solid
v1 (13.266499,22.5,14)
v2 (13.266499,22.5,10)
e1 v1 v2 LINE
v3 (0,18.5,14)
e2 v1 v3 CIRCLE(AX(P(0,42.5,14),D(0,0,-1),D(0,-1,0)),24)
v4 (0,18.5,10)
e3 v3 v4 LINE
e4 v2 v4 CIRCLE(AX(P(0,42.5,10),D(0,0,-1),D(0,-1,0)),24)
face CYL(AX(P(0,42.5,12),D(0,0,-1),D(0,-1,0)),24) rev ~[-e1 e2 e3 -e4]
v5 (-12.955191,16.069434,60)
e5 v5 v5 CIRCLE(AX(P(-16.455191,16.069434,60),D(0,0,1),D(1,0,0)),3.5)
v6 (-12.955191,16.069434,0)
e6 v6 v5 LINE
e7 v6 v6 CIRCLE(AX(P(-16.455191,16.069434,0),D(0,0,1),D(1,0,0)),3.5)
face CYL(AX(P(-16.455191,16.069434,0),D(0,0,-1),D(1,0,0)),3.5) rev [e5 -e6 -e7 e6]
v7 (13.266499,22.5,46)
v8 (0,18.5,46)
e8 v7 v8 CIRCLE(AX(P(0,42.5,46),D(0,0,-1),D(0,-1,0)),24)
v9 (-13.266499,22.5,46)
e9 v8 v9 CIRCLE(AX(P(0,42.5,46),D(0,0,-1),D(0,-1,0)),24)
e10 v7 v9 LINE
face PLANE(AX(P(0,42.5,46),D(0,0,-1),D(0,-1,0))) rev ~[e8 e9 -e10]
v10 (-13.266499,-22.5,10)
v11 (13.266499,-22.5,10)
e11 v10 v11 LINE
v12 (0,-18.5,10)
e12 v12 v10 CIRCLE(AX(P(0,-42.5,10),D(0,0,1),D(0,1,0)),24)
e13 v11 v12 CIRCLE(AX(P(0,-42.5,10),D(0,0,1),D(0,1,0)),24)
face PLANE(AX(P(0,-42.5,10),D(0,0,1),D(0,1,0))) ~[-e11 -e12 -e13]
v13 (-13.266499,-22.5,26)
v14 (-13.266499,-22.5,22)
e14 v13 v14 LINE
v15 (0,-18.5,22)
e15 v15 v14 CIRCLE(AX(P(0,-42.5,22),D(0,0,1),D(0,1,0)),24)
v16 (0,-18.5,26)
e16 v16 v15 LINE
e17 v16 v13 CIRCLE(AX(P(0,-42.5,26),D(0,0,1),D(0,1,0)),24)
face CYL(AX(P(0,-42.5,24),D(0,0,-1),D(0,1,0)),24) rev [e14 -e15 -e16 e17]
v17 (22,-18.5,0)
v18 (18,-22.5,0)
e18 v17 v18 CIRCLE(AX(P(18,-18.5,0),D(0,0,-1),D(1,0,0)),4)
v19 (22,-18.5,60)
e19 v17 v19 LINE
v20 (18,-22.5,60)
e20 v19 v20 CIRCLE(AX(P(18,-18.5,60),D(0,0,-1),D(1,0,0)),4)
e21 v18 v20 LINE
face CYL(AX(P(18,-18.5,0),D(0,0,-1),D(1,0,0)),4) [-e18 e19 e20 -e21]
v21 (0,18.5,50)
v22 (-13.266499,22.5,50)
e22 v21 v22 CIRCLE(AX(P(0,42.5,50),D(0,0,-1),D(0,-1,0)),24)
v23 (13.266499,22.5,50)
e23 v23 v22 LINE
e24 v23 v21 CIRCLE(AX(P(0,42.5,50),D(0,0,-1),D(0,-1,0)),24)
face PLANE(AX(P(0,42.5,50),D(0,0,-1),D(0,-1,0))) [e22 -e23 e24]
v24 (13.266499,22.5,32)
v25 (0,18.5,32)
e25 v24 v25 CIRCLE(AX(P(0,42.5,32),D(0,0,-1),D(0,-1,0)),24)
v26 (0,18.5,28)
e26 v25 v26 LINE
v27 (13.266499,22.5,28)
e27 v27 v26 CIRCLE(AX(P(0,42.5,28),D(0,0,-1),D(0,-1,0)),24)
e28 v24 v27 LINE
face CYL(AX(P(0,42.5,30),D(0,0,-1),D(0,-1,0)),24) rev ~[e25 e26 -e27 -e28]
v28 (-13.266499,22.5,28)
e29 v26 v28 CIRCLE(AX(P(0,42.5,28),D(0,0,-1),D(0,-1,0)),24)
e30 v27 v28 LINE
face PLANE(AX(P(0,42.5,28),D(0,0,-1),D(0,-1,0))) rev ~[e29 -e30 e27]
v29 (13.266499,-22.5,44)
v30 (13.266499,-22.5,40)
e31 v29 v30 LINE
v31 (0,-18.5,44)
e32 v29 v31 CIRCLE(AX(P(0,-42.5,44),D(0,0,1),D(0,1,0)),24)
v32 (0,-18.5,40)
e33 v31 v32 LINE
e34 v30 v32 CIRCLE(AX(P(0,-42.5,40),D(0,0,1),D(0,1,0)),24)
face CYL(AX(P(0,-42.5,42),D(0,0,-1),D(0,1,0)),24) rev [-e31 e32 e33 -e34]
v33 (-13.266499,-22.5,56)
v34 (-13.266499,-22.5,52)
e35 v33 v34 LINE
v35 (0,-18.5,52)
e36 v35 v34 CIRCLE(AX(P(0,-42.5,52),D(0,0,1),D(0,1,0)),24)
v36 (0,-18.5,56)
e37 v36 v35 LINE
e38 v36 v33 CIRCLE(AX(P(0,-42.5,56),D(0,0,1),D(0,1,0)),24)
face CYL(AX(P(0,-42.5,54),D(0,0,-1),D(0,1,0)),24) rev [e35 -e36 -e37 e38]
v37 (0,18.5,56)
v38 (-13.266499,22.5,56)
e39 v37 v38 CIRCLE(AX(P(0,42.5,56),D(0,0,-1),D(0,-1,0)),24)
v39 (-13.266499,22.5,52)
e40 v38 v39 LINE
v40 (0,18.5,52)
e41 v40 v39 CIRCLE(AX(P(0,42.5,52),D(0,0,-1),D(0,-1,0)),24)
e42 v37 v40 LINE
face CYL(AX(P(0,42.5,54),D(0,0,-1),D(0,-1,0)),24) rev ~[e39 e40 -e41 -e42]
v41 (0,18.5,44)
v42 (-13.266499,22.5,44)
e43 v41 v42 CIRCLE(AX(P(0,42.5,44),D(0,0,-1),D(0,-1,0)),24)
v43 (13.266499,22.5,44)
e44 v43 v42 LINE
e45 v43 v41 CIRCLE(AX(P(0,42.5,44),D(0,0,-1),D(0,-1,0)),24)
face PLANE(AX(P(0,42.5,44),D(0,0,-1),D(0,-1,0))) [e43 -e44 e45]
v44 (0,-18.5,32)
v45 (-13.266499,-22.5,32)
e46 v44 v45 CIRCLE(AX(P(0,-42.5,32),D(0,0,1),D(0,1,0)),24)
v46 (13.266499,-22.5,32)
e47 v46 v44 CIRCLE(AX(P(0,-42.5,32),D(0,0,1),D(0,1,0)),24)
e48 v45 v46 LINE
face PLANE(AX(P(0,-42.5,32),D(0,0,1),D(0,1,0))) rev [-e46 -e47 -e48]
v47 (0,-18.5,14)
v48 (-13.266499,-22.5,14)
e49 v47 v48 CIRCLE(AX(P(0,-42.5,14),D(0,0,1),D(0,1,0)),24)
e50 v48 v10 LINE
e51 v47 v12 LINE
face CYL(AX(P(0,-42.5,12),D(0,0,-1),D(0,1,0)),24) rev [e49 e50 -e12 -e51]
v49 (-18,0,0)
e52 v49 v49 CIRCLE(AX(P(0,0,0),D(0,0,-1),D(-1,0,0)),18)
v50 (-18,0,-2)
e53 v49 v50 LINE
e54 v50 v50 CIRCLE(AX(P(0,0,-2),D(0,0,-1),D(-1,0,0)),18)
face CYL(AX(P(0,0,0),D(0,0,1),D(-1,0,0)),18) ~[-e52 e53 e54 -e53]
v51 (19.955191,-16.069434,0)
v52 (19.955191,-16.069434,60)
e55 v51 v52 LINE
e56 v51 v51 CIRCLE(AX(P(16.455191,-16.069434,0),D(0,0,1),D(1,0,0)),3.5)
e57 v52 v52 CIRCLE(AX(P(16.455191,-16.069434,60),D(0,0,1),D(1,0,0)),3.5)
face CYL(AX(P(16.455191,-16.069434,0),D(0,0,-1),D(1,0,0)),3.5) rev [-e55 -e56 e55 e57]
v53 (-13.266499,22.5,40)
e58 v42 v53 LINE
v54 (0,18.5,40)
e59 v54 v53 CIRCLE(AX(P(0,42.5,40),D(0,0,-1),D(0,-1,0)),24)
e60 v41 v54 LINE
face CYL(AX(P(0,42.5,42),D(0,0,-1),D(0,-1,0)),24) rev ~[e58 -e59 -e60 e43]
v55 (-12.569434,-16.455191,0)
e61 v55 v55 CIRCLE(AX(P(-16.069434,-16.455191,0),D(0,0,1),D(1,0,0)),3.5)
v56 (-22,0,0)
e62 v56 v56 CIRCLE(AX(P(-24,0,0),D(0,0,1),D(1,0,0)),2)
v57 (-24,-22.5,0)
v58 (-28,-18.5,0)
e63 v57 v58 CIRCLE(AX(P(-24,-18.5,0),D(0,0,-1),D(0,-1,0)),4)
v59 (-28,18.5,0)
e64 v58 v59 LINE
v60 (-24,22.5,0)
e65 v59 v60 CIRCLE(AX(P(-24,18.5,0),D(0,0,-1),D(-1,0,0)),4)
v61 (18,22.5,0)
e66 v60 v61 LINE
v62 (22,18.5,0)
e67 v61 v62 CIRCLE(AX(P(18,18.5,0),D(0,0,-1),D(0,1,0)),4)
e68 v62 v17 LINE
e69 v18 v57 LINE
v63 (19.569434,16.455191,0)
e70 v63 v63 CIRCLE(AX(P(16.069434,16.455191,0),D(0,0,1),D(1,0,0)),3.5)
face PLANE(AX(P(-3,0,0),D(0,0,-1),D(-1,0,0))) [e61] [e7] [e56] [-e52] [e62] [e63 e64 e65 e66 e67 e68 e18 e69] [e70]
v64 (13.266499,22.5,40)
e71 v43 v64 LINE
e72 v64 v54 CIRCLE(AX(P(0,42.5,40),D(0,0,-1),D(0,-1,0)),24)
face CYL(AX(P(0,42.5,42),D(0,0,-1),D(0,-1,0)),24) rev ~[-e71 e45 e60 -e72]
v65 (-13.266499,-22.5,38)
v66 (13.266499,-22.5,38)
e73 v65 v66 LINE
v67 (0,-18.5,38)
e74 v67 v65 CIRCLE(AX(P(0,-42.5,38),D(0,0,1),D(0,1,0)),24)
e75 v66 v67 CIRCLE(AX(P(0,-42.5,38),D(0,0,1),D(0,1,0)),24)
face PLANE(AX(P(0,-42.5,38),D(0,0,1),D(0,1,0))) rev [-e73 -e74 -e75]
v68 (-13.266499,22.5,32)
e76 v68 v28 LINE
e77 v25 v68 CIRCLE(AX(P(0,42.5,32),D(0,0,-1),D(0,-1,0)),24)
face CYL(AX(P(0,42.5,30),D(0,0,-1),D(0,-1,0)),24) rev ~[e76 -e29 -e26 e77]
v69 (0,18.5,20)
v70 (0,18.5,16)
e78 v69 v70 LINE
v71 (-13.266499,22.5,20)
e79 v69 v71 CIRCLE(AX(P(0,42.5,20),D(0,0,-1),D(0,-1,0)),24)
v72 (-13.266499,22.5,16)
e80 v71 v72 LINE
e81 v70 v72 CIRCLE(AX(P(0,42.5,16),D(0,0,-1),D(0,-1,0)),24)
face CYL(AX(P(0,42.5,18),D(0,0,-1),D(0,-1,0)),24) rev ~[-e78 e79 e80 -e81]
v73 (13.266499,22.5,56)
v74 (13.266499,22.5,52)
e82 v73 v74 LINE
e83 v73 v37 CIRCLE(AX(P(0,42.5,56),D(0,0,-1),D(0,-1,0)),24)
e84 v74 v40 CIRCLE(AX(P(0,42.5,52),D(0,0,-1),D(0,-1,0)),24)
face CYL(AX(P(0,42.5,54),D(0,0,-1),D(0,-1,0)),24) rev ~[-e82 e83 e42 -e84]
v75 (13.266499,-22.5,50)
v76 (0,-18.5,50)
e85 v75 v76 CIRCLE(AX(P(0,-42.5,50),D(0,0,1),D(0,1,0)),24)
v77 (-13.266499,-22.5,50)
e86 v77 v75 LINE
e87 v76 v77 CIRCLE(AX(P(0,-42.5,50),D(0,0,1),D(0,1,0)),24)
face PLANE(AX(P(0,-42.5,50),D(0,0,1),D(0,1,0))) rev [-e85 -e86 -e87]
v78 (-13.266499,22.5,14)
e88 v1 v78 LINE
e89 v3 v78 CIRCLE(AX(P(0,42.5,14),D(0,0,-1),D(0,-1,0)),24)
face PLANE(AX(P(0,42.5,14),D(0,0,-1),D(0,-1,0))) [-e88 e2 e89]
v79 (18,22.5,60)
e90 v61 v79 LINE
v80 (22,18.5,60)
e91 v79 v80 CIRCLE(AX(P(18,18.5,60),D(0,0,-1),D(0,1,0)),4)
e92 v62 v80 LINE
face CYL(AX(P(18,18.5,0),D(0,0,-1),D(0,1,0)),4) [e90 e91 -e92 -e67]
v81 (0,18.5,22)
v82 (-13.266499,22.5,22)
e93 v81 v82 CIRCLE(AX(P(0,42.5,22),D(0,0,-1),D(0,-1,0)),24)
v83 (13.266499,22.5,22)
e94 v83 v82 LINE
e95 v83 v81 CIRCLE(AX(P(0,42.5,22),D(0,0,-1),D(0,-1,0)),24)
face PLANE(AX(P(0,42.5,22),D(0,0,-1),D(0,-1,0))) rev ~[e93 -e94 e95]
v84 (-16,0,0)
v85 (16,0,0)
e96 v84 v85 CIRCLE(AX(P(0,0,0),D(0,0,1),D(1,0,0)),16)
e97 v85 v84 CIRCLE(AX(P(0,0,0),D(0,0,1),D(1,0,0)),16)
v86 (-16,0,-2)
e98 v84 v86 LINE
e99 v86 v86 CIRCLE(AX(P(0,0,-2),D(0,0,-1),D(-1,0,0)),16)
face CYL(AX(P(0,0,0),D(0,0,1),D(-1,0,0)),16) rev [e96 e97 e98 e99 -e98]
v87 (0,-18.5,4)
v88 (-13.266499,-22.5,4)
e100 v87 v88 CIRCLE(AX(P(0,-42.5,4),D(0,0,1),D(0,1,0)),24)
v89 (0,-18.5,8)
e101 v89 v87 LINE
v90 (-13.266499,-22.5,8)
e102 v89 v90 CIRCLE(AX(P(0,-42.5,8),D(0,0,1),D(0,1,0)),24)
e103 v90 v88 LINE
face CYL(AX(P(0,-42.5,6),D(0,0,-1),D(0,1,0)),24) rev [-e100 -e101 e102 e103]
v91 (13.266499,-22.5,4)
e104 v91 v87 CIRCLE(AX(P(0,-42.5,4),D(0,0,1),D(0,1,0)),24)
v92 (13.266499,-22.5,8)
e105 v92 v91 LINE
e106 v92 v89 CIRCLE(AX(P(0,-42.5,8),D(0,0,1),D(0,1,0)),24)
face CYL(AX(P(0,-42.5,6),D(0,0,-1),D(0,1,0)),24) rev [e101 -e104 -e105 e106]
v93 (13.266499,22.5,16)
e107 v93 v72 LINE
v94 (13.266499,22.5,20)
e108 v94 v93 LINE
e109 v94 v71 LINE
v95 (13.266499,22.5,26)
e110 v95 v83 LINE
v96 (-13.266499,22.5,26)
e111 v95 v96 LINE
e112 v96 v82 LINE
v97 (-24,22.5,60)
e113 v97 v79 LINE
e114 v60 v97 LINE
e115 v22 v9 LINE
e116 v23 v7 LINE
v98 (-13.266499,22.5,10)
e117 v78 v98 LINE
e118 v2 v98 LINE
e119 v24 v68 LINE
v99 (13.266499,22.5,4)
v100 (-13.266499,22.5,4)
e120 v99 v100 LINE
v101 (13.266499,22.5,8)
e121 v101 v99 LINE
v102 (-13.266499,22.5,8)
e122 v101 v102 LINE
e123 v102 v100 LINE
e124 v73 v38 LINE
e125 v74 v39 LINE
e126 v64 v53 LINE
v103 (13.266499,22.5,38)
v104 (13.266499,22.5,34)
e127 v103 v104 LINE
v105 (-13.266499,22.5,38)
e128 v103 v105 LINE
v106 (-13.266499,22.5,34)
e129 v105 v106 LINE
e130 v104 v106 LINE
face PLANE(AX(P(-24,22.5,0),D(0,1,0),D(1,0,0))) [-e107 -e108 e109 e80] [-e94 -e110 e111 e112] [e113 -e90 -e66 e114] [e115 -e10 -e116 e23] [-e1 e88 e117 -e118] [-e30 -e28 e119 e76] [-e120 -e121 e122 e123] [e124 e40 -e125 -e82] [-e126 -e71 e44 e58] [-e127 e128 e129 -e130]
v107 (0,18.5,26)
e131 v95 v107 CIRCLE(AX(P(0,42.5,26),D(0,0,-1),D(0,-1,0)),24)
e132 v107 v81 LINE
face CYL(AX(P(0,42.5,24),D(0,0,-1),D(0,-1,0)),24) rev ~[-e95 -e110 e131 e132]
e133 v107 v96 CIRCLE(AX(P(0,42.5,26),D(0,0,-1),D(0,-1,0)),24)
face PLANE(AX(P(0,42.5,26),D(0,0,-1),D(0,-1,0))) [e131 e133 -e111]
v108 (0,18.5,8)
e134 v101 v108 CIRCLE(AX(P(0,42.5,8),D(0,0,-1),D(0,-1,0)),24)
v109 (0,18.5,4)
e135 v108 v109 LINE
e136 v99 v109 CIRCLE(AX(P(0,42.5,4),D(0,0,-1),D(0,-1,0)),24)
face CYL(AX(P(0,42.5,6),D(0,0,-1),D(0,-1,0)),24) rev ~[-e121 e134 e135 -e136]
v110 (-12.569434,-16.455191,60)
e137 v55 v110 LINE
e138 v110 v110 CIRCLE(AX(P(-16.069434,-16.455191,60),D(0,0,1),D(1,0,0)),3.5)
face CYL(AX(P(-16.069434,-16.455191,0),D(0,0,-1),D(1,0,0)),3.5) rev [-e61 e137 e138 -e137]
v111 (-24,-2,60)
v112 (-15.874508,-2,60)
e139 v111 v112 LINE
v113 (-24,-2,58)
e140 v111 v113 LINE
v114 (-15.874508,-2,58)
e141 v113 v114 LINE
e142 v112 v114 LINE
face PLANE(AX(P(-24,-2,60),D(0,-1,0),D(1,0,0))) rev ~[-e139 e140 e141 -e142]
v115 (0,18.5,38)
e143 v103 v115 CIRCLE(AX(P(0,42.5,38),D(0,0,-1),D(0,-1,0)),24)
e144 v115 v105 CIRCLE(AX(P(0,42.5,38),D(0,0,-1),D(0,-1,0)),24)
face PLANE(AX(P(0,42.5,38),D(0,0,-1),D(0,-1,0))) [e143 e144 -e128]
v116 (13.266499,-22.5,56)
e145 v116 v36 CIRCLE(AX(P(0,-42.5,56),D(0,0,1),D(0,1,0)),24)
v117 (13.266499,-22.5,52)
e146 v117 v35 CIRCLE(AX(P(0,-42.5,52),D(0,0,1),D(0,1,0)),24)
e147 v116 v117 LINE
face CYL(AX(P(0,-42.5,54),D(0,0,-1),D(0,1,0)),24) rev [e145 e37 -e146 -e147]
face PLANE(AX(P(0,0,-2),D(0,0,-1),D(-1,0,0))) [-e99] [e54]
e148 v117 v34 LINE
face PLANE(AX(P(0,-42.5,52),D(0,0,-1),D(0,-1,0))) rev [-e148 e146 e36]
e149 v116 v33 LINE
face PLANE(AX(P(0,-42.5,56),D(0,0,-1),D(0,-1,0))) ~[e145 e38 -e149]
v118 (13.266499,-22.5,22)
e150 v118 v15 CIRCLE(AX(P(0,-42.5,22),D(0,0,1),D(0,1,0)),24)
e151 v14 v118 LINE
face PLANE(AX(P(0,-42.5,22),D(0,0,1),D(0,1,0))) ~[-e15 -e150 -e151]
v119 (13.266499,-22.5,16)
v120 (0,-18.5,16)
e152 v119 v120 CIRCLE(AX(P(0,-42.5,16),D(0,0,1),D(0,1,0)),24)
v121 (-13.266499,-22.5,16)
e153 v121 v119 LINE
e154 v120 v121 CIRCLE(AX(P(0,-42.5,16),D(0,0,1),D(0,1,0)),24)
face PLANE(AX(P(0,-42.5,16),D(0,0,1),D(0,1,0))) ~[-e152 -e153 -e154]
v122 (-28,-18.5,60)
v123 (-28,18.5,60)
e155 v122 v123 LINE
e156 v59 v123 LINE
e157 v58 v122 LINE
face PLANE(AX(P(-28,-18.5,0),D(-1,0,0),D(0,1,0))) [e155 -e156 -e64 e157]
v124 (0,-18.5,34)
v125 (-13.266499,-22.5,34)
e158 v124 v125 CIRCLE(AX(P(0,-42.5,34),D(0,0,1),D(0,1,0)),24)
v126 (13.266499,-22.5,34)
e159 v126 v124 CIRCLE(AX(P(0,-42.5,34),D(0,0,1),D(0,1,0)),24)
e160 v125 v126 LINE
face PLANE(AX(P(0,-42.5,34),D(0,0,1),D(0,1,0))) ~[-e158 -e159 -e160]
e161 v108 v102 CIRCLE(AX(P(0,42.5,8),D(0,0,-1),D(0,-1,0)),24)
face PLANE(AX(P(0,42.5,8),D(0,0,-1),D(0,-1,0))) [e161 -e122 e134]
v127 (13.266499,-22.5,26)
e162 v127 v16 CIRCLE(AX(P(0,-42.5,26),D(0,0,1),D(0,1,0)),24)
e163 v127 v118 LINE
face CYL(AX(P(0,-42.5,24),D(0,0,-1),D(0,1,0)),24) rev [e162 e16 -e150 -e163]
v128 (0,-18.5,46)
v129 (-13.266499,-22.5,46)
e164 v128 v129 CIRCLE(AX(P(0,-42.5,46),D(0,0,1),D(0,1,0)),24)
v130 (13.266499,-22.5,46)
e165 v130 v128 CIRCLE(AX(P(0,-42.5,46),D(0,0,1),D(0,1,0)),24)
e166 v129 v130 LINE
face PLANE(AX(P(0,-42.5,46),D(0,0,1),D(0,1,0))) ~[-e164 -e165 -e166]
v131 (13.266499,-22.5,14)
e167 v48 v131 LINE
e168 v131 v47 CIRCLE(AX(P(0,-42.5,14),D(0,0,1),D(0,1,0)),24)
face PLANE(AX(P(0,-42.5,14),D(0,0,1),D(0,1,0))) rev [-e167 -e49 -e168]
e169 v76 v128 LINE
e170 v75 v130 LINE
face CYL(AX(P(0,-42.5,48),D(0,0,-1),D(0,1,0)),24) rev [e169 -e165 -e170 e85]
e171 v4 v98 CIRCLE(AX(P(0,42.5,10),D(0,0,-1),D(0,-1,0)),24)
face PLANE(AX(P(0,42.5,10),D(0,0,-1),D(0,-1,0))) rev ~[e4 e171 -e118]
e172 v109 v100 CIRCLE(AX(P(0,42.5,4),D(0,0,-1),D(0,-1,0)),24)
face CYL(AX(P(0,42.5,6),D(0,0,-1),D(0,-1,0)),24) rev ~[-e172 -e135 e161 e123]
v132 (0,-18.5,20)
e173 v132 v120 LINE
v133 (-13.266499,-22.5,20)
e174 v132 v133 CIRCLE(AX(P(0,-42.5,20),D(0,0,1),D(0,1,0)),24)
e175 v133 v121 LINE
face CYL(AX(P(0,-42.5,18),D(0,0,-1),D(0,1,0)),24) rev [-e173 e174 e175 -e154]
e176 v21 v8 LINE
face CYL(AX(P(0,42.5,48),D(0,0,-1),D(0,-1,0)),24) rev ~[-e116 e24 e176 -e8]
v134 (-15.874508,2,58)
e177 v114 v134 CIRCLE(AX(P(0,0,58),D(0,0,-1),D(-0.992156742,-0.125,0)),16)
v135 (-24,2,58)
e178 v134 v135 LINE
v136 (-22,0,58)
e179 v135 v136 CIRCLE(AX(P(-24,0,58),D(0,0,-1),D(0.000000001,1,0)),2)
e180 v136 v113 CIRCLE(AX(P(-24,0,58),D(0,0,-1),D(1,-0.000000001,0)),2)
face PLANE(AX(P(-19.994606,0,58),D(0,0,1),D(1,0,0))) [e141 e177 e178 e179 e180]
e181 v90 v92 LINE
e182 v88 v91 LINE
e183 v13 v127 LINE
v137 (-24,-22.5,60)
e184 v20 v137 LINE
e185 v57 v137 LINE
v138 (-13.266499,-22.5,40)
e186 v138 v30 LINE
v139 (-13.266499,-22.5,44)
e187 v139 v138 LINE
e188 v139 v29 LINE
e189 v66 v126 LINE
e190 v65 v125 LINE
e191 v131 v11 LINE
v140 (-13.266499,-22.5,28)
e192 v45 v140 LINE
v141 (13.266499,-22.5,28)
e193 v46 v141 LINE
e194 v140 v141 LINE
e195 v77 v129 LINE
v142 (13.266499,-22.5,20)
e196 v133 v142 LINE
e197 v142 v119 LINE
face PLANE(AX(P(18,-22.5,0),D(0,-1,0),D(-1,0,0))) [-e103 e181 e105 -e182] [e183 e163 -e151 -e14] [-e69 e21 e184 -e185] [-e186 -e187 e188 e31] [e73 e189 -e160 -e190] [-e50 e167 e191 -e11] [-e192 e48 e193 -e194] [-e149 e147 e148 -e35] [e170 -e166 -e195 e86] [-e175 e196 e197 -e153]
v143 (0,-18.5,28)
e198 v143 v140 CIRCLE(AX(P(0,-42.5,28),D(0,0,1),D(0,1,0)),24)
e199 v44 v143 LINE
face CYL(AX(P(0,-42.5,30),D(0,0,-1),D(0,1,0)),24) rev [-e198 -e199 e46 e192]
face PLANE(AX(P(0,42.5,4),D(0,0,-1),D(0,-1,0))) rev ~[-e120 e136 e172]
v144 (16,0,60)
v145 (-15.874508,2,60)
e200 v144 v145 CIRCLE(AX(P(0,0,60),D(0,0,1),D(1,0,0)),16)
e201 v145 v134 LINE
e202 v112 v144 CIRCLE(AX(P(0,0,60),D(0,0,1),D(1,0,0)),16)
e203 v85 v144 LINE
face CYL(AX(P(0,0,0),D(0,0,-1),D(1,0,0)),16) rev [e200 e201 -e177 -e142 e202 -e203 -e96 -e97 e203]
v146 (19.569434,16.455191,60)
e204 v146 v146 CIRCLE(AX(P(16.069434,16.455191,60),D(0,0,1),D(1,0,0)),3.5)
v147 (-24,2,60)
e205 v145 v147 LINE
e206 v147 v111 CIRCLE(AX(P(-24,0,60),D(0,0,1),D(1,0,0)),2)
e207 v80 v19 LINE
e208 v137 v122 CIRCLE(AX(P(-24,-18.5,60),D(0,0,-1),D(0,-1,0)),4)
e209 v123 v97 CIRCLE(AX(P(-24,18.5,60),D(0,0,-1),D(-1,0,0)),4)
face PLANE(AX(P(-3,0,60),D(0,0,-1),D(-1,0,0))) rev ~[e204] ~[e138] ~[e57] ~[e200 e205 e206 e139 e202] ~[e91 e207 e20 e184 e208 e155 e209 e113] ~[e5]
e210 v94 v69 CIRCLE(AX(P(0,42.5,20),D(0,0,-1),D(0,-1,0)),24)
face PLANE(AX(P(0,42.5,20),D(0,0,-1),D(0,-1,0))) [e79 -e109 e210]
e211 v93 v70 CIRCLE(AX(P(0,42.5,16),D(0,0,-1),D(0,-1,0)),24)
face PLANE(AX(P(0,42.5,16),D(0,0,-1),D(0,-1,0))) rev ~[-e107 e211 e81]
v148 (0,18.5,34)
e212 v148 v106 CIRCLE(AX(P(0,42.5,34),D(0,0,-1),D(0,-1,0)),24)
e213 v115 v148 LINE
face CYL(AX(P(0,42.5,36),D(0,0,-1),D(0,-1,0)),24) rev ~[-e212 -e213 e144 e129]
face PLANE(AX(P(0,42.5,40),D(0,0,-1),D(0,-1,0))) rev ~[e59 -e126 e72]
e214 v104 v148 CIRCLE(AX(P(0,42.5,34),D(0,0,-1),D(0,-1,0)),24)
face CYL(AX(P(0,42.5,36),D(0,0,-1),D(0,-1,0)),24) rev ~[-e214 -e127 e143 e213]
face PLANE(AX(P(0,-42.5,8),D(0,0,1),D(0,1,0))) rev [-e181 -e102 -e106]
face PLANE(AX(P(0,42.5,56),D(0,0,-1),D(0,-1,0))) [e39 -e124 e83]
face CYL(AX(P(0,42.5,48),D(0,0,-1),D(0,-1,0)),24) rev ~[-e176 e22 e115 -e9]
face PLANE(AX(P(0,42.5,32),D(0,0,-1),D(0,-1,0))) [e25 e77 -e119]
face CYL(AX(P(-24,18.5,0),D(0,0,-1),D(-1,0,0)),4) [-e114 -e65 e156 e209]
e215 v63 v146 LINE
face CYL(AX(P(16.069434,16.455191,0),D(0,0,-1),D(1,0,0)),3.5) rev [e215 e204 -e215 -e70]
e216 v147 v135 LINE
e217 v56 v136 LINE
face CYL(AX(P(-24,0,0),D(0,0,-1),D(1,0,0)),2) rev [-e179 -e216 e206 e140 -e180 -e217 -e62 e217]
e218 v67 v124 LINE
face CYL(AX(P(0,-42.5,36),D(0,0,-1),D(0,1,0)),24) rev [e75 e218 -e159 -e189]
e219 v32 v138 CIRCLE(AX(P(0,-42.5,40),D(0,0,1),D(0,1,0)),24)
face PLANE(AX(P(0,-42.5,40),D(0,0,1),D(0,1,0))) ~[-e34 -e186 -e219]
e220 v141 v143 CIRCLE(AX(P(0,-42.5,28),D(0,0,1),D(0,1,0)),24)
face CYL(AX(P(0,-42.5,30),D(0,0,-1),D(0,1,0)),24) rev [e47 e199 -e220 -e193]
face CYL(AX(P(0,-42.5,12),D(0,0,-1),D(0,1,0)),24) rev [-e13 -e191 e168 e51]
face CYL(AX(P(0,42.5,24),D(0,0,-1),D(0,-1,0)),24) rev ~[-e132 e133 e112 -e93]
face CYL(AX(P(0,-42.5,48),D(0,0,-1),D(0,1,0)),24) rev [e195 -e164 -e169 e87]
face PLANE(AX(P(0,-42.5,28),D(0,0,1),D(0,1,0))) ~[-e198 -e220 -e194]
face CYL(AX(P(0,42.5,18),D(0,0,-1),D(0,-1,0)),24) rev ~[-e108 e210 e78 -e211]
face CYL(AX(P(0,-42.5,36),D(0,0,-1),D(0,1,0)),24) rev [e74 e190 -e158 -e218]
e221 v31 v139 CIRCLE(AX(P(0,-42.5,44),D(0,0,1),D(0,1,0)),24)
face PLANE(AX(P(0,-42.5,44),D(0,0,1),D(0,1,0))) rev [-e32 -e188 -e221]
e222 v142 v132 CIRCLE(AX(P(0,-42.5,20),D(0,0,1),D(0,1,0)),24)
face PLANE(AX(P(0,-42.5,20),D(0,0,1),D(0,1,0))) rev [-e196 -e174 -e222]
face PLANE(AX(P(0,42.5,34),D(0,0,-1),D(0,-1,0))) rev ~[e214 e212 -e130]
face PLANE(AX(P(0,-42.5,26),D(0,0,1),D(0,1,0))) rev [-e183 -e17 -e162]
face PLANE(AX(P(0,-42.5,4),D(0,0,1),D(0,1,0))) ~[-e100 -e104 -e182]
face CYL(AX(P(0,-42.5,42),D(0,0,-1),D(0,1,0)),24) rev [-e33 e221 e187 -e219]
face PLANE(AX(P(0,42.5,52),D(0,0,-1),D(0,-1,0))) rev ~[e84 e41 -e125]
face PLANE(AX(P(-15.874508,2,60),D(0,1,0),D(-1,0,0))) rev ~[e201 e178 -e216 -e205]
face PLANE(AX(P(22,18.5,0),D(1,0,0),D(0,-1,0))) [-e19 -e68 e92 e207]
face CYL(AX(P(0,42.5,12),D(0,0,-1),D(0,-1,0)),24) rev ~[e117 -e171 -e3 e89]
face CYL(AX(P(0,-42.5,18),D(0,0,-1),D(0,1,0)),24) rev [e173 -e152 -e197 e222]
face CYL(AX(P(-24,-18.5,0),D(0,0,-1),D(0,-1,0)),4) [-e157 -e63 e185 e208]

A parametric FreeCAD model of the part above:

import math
import FreeCAD as App
import Part
import Sketcher

V = App.Vector

doc = App.newDocument("Part")
body = doc.addObject("PartDesign::Body", "Body")

sketch1 = doc.addObject("Sketcher::SketchObject", "Sketch")
body.addObject(sketch1)
sketch1.AttachmentSupport = (doc.XY_Plane, [""])
sketch1.MapMode = "FlatFace"
sketch1.addGeometry(Part.LineSegment(V(18, 22.5, 0), V(-24, 22.5, 0)), False)
sketch1.addGeometry(Part.ArcOfCircle(Part.Circle(V(-24, 18.5, 0), V(0, 0, 1), 4), math.radians(90), math.radians(180)), False)
sketch1.addGeometry(Part.LineSegment(V(-28, 18.5, 0), V(-28, -18.5, 0)), False)
sketch1.addGeometry(Part.ArcOfCircle(Part.Circle(V(-24, -18.5, 0), V(0, 0, 1), 4), math.radians(180), math.radians(270)), False)
sketch1.addGeometry(Part.LineSegment(V(-24, -22.5, 0), V(18, -22.5, 0)), False)
sketch1.addGeometry(Part.ArcOfCircle(Part.Circle(V(18, -18.5, 0), V(0, 0, 1), 4), math.radians(-90), math.radians(0)), False)
sketch1.addGeometry(Part.LineSegment(V(22, -18.5, 0), V(22, 18.5, 0)), False)
sketch1.addGeometry(Part.ArcOfCircle(Part.Circle(V(18, 18.5, 0), V(0, 0, 1), 4), math.radians(0), math.radians(90)), False)
sketch1.addGeometry(Part.Circle(V(16.5, -16.1, 0), V(0, 0, 1), 3.5), False)
sketch1.addGeometry(Part.Circle(V(-16.1, -16.5, 0), V(0, 0, 1), 3.5), False)
sketch1.addGeometry(Part.Circle(V(0, 0, 0), V(0, 0, 1), 16), False)
sketch1.addGeometry(Part.Circle(V(16.1, 16.5, 0), V(0, 0, 1), 3.5), False)
sketch1.addGeometry(Part.Circle(V(-24, 0, 0), V(0, 0, 1), 2), False)
sketch1.addGeometry(Part.Circle(V(-16.5, 16.1, 0), V(0, 0, 1), 3.5), False)
sketch1.addConstraint(Sketcher.Constraint("Tangent", 0, 2, 1, 1))
sketch1.addConstraint(Sketcher.Constraint("Tangent", 1, 2, 2, 1))
sketch1.addConstraint(Sketcher.Constraint("Tangent", 2, 2, 3, 1))
sketch1.addConstraint(Sketcher.Constraint("Tangent", 3, 2, 4, 1))
sketch1.addConstraint(Sketcher.Constraint("Tangent", 4, 2, 5, 1))
sketch1.addConstraint(Sketcher.Constraint("Tangent", 5, 2, 6, 1))
sketch1.addConstraint(Sketcher.Constraint("Tangent", 6, 2, 7, 1))
sketch1.addConstraint(Sketcher.Constraint("Tangent", 7, 2, 0, 1))
sketch1.addConstraint(Sketcher.Constraint("Horizontal", 0))
sketch1.addConstraint(Sketcher.Constraint("Vertical", 2))
sketch1.addConstraint(Sketcher.Constraint("Horizontal", 4))
sketch1.addConstraint(Sketcher.Constraint("Vertical", 6))
sketch1.addConstraint(Sketcher.Constraint("Coincident", 10, 3, -1, 1))
sketch1.addConstraint(Sketcher.Constraint("Equal", 1, 3))
sketch1.addConstraint(Sketcher.Constraint("Equal", 3, 5))
sketch1.addConstraint(Sketcher.Constraint("Equal", 5, 7))
sketch1.addConstraint(Sketcher.Constraint("Equal", 8, 9))
sketch1.addConstraint(Sketcher.Constraint("Equal", 9, 11))
sketch1.addConstraint(Sketcher.Constraint("Equal", 11, 13))
sketch1.addConstraint(Sketcher.Constraint("Symmetric", 9, 3, 11, 3, -1, 1))
sketch1.addConstraint(Sketcher.Constraint("Symmetric", 8, 3, 13, 3, -1, 1))
sketch1.addConstraint(Sketcher.Constraint("PointOnObject", 12, 3, -1))
sketch1.addConstraint(Sketcher.Constraint("Vertical", 3, 3, 12, 3))
sketch1.addConstraint(Sketcher.Constraint("Diameter", 8, 7.0))
sketch1.addConstraint(Sketcher.Constraint("Diameter", 10, 32.0))
sketch1.addConstraint(Sketcher.Constraint("Diameter", 12, 4.0))
sketch1.addConstraint(Sketcher.Constraint("Radius", 1, 4.0))
sketch1.addConstraint(Sketcher.Constraint("DistanceX", 0, 2, 0, 1, 42.0))
sketch1.addConstraint(Sketcher.Constraint("DistanceY", 2, 2, 2, 1, 37.0))
sketch1.addConstraint(Sketcher.Constraint("DistanceX", 1, 3, -1, 1, 24.0))
sketch1.addConstraint(Sketcher.Constraint("DistanceY", -1, 1, 1, 3, 18.5))
sketch1.addConstraint(Sketcher.Constraint("DistanceX", -1, 1, 8, 3, 16.455191))
sketch1.addConstraint(Sketcher.Constraint("DistanceY", 9, 3, -1, 1, 16.455191))
sketch1.addConstraint(Sketcher.Constraint("DistanceY", 8, 3, -1, 1, 16.069434))
sketch1.addConstraint(Sketcher.Constraint("DistanceX", 9, 3, -1, 1, 16.069434))
pad1 = doc.addObject("PartDesign::Pad", "Pad")
body.addObject(pad1)
pad1.Profile = sketch1
pad1.Length = 60

sketch2 = doc.addObject("Sketcher::SketchObject", "Sketch001")
body.addObject(sketch2)
sketch2.AttachmentSupport = (doc.XY_Plane, [""])
sketch2.MapMode = "FlatFace"
sketch2.addGeometry(Part.Circle(V(0, 0, 0), V(0, 0, 1), 18), False)
sketch2.addGeometry(Part.Circle(V(0, 0, 0), V(0, 0, 1), 16), False)
sketch2.addConstraint(Sketcher.Constraint("Coincident", 0, 3, -1, 1))
sketch2.addConstraint(Sketcher.Constraint("Coincident", 1, 3, -1, 1))
sketch2.addConstraint(Sketcher.Constraint("Diameter", 0, 36.0))
sketch2.addConstraint(Sketcher.Constraint("Diameter", 1, 32.0))
pad2 = doc.addObject("PartDesign::Pad", "Pad001")
body.addObject(pad2)
pad2.Profile = sketch2
pad2.Length = 2
pad2.Reversed = True

sketch3 = doc.addObject("Sketcher::SketchObject", "Sketch002")
body.addObject(sketch3)
sketch3.AttachmentSupport = (doc.XY_Plane, [""])
sketch3.MapMode = "FlatFace"
sketch3.AttachmentOffset = App.Placement(V(0, 0, 60), App.Rotation())
sketch3.addGeometry(Part.LineSegment(V(-24, -2, 0), V(-15.9, -2, 0)), False)
sketch3.addGeometry(Part.ArcOfCircle(Part.Circle(V(0, 0, 0), V(0, 0, 1), 16), math.radians(172.82), math.radians(187.18)), False)
sketch3.addGeometry(Part.LineSegment(V(-15.9, 2, 0), V(-24, 2, 0)), False)
sketch3.addGeometry(Part.ArcOfCircle(Part.Circle(V(-24, 0, 0), V(0, 0, 1), 2), math.radians(0), math.radians(90)), False)
sketch3.addGeometry(Part.ArcOfCircle(Part.Circle(V(-24, 0, 0), V(0, 0, 1), 2), math.radians(-90), math.radians(0)), False)
sketch3.addConstraint(Sketcher.Constraint("Coincident", 0, 2, 1, 2))
sketch3.addConstraint(Sketcher.Constraint("Coincident", 1, 1, 2, 1))
sketch3.addConstraint(Sketcher.Constraint("Tangent", 2, 2, 3, 2))
sketch3.addConstraint(Sketcher.Constraint("Tangent", 3, 1, 4, 2))
sketch3.addConstraint(Sketcher.Constraint("Tangent", 4, 1, 0, 1))
sketch3.addConstraint(Sketcher.Constraint("Horizontal", 0))
sketch3.addConstraint(Sketcher.Constraint("Horizontal", 2))
sketch3.addConstraint(Sketcher.Constraint("Coincident", 1, 3, -1, 1))
sketch3.addConstraint(Sketcher.Constraint("Equal", 3, 4))
sketch3.addConstraint(Sketcher.Constraint("PointOnObject", 3, 3, -1))
sketch3.addConstraint(Sketcher.Constraint("PointOnObject", 3, 1, -1))
sketch3.addConstraint(Sketcher.Constraint("Radius", 1, 16.0))
sketch3.addConstraint(Sketcher.Constraint("Radius", 3, 2.0))
sketch3.addConstraint(Sketcher.Constraint("DistanceX", 3, 3, -1, 1, 24.0))
pocket1 = doc.addObject("PartDesign::Pocket", "Pocket")
body.addObject(pocket1)
pocket1.Profile = sketch3
pocket1.Length = 2

sketch4 = doc.addObject("Sketcher::SketchObject", "Sketch003")
body.addObject(sketch4)
sketch4.AttachmentSupport = (doc.YZ_Plane, [""])
sketch4.MapMode = "FlatFace"
sketch4.addGeometry(Part.LineSegment(V(42.5, 56, 0), V(18.5, 56, 0)), False)
sketch4.addGeometry(Part.LineSegment(V(18.5, 56, 0), V(18.5, 52, 0)), False)
sketch4.addGeometry(Part.LineSegment(V(18.5, 52, 0), V(42.5, 52, 0)), False)
sketch4.addGeometry(Part.LineSegment(V(42.5, 52, 0), V(42.5, 56, 0)), False)
sketch4.addGeometry(Part.LineSegment(V(42.5, 56, 0), V(42.5, 52, 0)), True)
sketch4.addConstraint(Sketcher.Constraint("Coincident", 0, 2, 1, 1))
sketch4.addConstraint(Sketcher.Constraint("Coincident", 1, 2, 2, 1))
sketch4.addConstraint(Sketcher.Constraint("Coincident", 2, 2, 3, 1))
sketch4.addConstraint(Sketcher.Constraint("Coincident", 3, 2, 0, 1))
sketch4.addConstraint(Sketcher.Constraint("Horizontal", 0))
sketch4.addConstraint(Sketcher.Constraint("Vertical", 1))
sketch4.addConstraint(Sketcher.Constraint("Horizontal", 2))
sketch4.addConstraint(Sketcher.Constraint("Vertical", 3))
sketch4.addConstraint(Sketcher.Constraint("Vertical", 4))
sketch4.addConstraint(Sketcher.Constraint("Coincident", 4, 1, 3, 2))
sketch4.addConstraint(Sketcher.Constraint("Horizontal", 1, 2, 4, 2))
sketch4.addConstraint(Sketcher.Constraint("DistanceX", 0, 2, 0, 1, 24.0))
sketch4.addConstraint(Sketcher.Constraint("DistanceY", 1, 2, 1, 1, 4.0))
sketch4.addConstraint(Sketcher.Constraint("DistanceY", -1, 1, 0, 2, 56.0))
sketch4.addConstraint(Sketcher.Constraint("DistanceX", -1, 1, 0, 2, 18.5))
groove = doc.addObject("PartDesign::Groove", "Groove")
body.addObject(groove)
groove.Profile = sketch4
groove.ReferenceAxis = (sketch4, ["Axis0"])
groove.Angle = 360
doc.recompute()

linearpattern = doc.addObject("PartDesign::LinearPattern", "LinearPattern")
body.addObject(linearpattern)
linearpattern.Originals = [groove]
linearpattern.Direction = (doc.Z_Axis, [""])
linearpattern.Mode = "offset"
linearpattern.Offset = 6
linearpattern.Occurrences = 9
linearpattern.Reversed = True
body.Tip = linearpattern
doc.recompute()

mirrored = doc.addObject("PartDesign::Mirrored", "Mirrored")
body.addObject(mirrored)
mirrored.Originals = [groove]
mirrored.MirrorPlane = (doc.XZ_Plane, [""])
body.Tip = mirrored

sketch5 = doc.addObject("Sketcher::SketchObject", "Sketch004")
body.addObject(sketch5)
sketch5.AttachmentSupport = (doc.YZ_Plane, [""])
sketch5.MapMode = "FlatFace"
sketch5.addGeometry(Part.LineSegment(V(-18.5, 50, 0), V(-42.5, 50, 0)), False)
sketch5.addGeometry(Part.LineSegment(V(-42.5, 50, 0), V(-42.5, 46, 0)), False)
sketch5.addGeometry(Part.LineSegment(V(-42.5, 46, 0), V(-18.5, 46, 0)), False)
sketch5.addGeometry(Part.LineSegment(V(-18.5, 46, 0), V(-18.5, 50, 0)), False)
sketch5.addGeometry(Part.LineSegment(V(-42.5, 46, 0), V(-42.5, 50, 0)), True)
sketch5.addConstraint(Sketcher.Constraint("Coincident", 0, 2, 1, 1))
sketch5.addConstraint(Sketcher.Constraint("Coincident", 1, 2, 2, 1))
sketch5.addConstraint(Sketcher.Constraint("Coincident", 2, 2, 3, 1))
sketch5.addConstraint(Sketcher.Constraint("Coincident", 3, 2, 0, 1))
sketch5.addConstraint(Sketcher.Constraint("Horizontal", 0))
sketch5.addConstraint(Sketcher.Constraint("Vertical", 1))
sketch5.addConstraint(Sketcher.Constraint("Horizontal", 2))
sketch5.addConstraint(Sketcher.Constraint("Vertical", 3))
sketch5.addConstraint(Sketcher.Constraint("Vertical", 4))
sketch5.addConstraint(Sketcher.Constraint("Coincident", 4, 1, 1, 2))
sketch5.addConstraint(Sketcher.Constraint("Horizontal", 3, 2, 4, 2))
sketch5.addConstraint(Sketcher.Constraint("DistanceX", 0, 2, 0, 1, 24.0))
sketch5.addConstraint(Sketcher.Constraint("DistanceY", 1, 2, 1, 1, 4.0))
sketch5.addConstraint(Sketcher.Constraint("DistanceY", -1, 1, 0, 2, 50.0))
sketch5.addConstraint(Sketcher.Constraint("DistanceX", 0, 2, -1, 1, 42.5))
groove2 = doc.addObject("PartDesign::Groove", "Groove001")
body.addObject(groove2)
groove2.Profile = sketch5
groove2.ReferenceAxis = (sketch5, ["Axis0"])
groove2.Angle = 360

sketch6 = doc.addObject("Sketcher::SketchObject", "Sketch005")
body.addObject(sketch6)
sketch6.AttachmentSupport = (doc.YZ_Plane, [""])
sketch6.MapMode = "FlatFace"
sketch6.addGeometry(Part.LineSegment(V(-18.5, 44, 0), V(-42.5, 44, 0)), False)
sketch6.addGeometry(Part.LineSegment(V(-42.5, 44, 0), V(-42.5, 40, 0)), False)
sketch6.addGeometry(Part.LineSegment(V(-42.5, 40, 0), V(-18.5, 40, 0)), False)
sketch6.addGeometry(Part.LineSegment(V(-18.5, 40, 0), V(-18.5, 44, 0)), False)
sketch6.addGeometry(Part.LineSegment(V(-42.5, 40, 0), V(-42.5, 44, 0)), True)
sketch6.addConstraint(Sketcher.Constraint("Coincident", 0, 2, 1, 1))
sketch6.addConstraint(Sketcher.Constraint("Coincident", 1, 2, 2, 1))
sketch6.addConstraint(Sketcher.Constraint("Coincident", 2, 2, 3, 1))
sketch6.addConstraint(Sketcher.Constraint("Coincident", 3, 2, 0, 1))
sketch6.addConstraint(Sketcher.Constraint("Horizontal", 0))
sketch6.addConstraint(Sketcher.Constraint("Vertical", 1))
sketch6.addConstraint(Sketcher.Constraint("Horizontal", 2))
sketch6.addConstraint(Sketcher.Constraint("Vertical", 3))
sketch6.addConstraint(Sketcher.Constraint("Vertical", 4))
sketch6.addConstraint(Sketcher.Constraint("Coincident", 4, 1, 1, 2))
sketch6.addConstraint(Sketcher.Constraint("Horizontal", 3, 2, 4, 2))
sketch6.addConstraint(Sketcher.Constraint("DistanceX", 0, 2, 0, 1, 24.0))
sketch6.addConstraint(Sketcher.Constraint("DistanceY", 1, 2, 1, 1, 4.0))
sketch6.addConstraint(Sketcher.Constraint("DistanceY", -1, 1, 0, 2, 44.0))
sketch6.addConstraint(Sketcher.Constraint("DistanceX", 0, 2, -1, 1, 42.5))
groove3 = doc.addObject("PartDesign::Groove", "Groove002")
body.addObject(groove3)
groove3.Profile = sketch6
groove3.ReferenceAxis = (sketch6, ["Axis0"])
groove3.Angle = 360

sketch7 = doc.addObject("Sketcher::SketchObject", "Sketch006")
body.addObject(sketch7)
sketch7.AttachmentSupport = (doc.YZ_Plane, [""])
sketch7.MapMode = "FlatFace"
sketch7.addGeometry(Part.LineSegment(V(-18.5, 38, 0), V(-42.5, 38, 0)), False)
sketch7.addGeometry(Part.LineSegment(V(-42.5, 38, 0), V(-42.5, 34, 0)), False)
sketch7.addGeometry(Part.LineSegment(V(-42.5, 34, 0), V(-18.5, 34, 0)), False)
sketch7.addGeometry(Part.LineSegment(V(-18.5, 34, 0), V(-18.5, 38, 0)), False)
sketch7.addGeometry(Part.LineSegment(V(-42.5, 34, 0), V(-42.5, 38, 0)), True)
sketch7.addConstraint(Sketcher.Constraint("Coincident", 0, 2, 1, 1))
sketch7.addConstraint(Sketcher.Constraint("Coincident", 1, 2, 2, 1))
sketch7.addConstraint(Sketcher.Constraint("Coincident", 2, 2, 3, 1))
sketch7.addConstraint(Sketcher.Constraint("Coincident", 3, 2, 0, 1))
sketch7.addConstraint(Sketcher.Constraint("Horizontal", 0))
sketch7.addConstraint(Sketcher.Constraint("Vertical", 1))
sketch7.addConstraint(Sketcher.Constraint("Horizontal", 2))
sketch7.addConstraint(Sketcher.Constraint("Vertical", 3))
sketch7.addConstraint(Sketcher.Constraint("Vertical", 4))
sketch7.addConstraint(Sketcher.Constraint("Coincident", 4, 1, 1, 2))
sketch7.addConstraint(Sketcher.Constraint("Horizontal", 3, 2, 4, 2))
sketch7.addConstraint(Sketcher.Constraint("DistanceX", 0, 2, 0, 1, 24.0))
sketch7.addConstraint(Sketcher.Constraint("DistanceY", 1, 2, 1, 1, 4.0))
sketch7.addConstraint(Sketcher.Constraint("DistanceY", -1, 1, 0, 2, 38.0))
sketch7.addConstraint(Sketcher.Constraint("DistanceX", 0, 2, -1, 1, 42.5))
groove4 = doc.addObject("PartDesign::Groove", "Groove003")
body.addObject(groove4)
groove4.Profile = sketch7
groove4.ReferenceAxis = (sketch7, ["Axis0"])
groove4.Angle = 360

sketch8 = doc.addObject("Sketcher::SketchObject", "Sketch007")
body.addObject(sketch8)
sketch8.AttachmentSupport = (doc.YZ_Plane, [""])
sketch8.MapMode = "FlatFace"
sketch8.addGeometry(Part.LineSegment(V(-18.5, 32, 0), V(-42.5, 32, 0)), False)
sketch8.addGeometry(Part.LineSegment(V(-42.5, 32, 0), V(-42.5, 28, 0)), False)
sketch8.addGeometry(Part.LineSegment(V(-42.5, 28, 0), V(-18.5, 28, 0)), False)
sketch8.addGeometry(Part.LineSegment(V(-18.5, 28, 0), V(-18.5, 32, 0)), False)
sketch8.addGeometry(Part.LineSegment(V(-42.5, 28, 0), V(-42.5, 32, 0)), True)
sketch8.addConstraint(Sketcher.Constraint("Coincident", 0, 2, 1, 1))
sketch8.addConstraint(Sketcher.Constraint("Coincident", 1, 2, 2, 1))
sketch8.addConstraint(Sketcher.Constraint("Coincident", 2, 2, 3, 1))
sketch8.addConstraint(Sketcher.Constraint("Coincident", 3, 2, 0, 1))
sketch8.addConstraint(Sketcher.Constraint("Horizontal", 0))
sketch8.addConstraint(Sketcher.Constraint("Vertical", 1))
sketch8.addConstraint(Sketcher.Constraint("Horizontal", 2))
sketch8.addConstraint(Sketcher.Constraint("Vertical", 3))
sketch8.addConstraint(Sketcher.Constraint("Vertical", 4))
sketch8.addConstraint(Sketcher.Constraint("Coincident", 4, 1, 1, 2))
sketch8.addConstraint(Sketcher.Constraint("Horizontal", 3, 2, 4, 2))
sketch8.addConstraint(Sketcher.Constraint("DistanceX", 0, 2, 0, 1, 24.0))
sketch8.addConstraint(Sketcher.Constraint("DistanceY", 1, 2, 1, 1, 4.0))
sketch8.addConstraint(Sketcher.Constraint("DistanceY", -1, 1, 0, 2, 32.0))
sketch8.addConstraint(Sketcher.Constraint("DistanceX", 0, 2, -1, 1, 42.5))
groove5 = doc.addObject("PartDesign::Groove", "Groove004")
body.addObject(groove5)
groove5.Profile = sketch8
groove5.ReferenceAxis = (sketch8, ["Axis0"])
groove5.Angle = 360

sketch9 = doc.addObject("Sketcher::SketchObject", "Sketch008")
body.addObject(sketch9)
sketch9.AttachmentSupport = (doc.YZ_Plane, [""])
sketch9.MapMode = "FlatFace"
sketch9.addGeometry(Part.LineSegment(V(-18.5, 26, 0), V(-42.5, 26, 0)), False)
sketch9.addGeometry(Part.LineSegment(V(-42.5, 26, 0), V(-42.5, 22, 0)), False)
sketch9.addGeometry(Part.LineSegment(V(-42.5, 22, 0), V(-18.5, 22, 0)), False)
sketch9.addGeometry(Part.LineSegment(V(-18.5, 22, 0), V(-18.5, 26, 0)), False)
sketch9.addGeometry(Part.LineSegment(V(-42.5, 22, 0), V(-42.5, 26, 0)), True)
sketch9.addConstraint(Sketcher.Constraint("Coincident", 0, 2, 1, 1))
sketch9.addConstraint(Sketcher.Constraint("Coincident", 1, 2, 2, 1))
sketch9.addConstraint(Sketcher.Constraint("Coincident", 2, 2, 3, 1))
sketch9.addConstraint(Sketcher.Constraint("Coincident", 3, 2, 0, 1))
sketch9.addConstraint(Sketcher.Constraint("Horizontal", 0))
sketch9.addConstraint(Sketcher.Constraint("Vertical", 1))
sketch9.addConstraint(Sketcher.Constraint("Horizontal", 2))
sketch9.addConstraint(Sketcher.Constraint("Vertical", 3))
sketch9.addConstraint(Sketcher.Constraint("Vertical", 4))
sketch9.addConstraint(Sketcher.Constraint("Coincident", 4, 1, 1, 2))
sketch9.addConstraint(Sketcher.Constraint("Horizontal", 3, 2, 4, 2))
sketch9.addConstraint(Sketcher.Constraint("DistanceX", 0, 2, 0, 1, 24.0))
sketch9.addConstraint(Sketcher.Constraint("DistanceY", 1, 2, 1, 1, 4.0))
sketch9.addConstraint(Sketcher.Constraint("DistanceY", -1, 1, 0, 2, 26.0))
sketch9.addConstraint(Sketcher.Constraint("DistanceX", 0, 2, -1, 1, 42.5))
groove6 = doc.addObject("PartDesign::Groove", "Groove005")
body.addObject(groove6)
groove6.Profile = sketch9
groove6.ReferenceAxis = (sketch9, ["Axis0"])
groove6.Angle = 360

sketch10 = doc.addObject("Sketcher::SketchObject", "Sketch009")
body.addObject(sketch10)
sketch10.AttachmentSupport = (doc.YZ_Plane, [""])
sketch10.MapMode = "FlatFace"
sketch10.addGeometry(Part.LineSegment(V(-18.5, 20, 0), V(-42.5, 20, 0)), False)
sketch10.addGeometry(Part.LineSegment(V(-42.5, 20, 0), V(-42.5, 16, 0)), False)
sketch10.addGeometry(Part.LineSegment(V(-42.5, 16, 0), V(-18.5, 16, 0)), False)
sketch10.addGeometry(Part.LineSegment(V(-18.5, 16, 0), V(-18.5, 20, 0)), False)
sketch10.addGeometry(Part.LineSegment(V(-42.5, 16, 0), V(-42.5, 20, 0)), True)
sketch10.addConstraint(Sketcher.Constraint("Coincident", 0, 2, 1, 1))
sketch10.addConstraint(Sketcher.Constraint("Coincident", 1, 2, 2, 1))
sketch10.addConstraint(Sketcher.Constraint("Coincident", 2, 2, 3, 1))
sketch10.addConstraint(Sketcher.Constraint("Coincident", 3, 2, 0, 1))
sketch10.addConstraint(Sketcher.Constraint("Horizontal", 0))
sketch10.addConstraint(Sketcher.Constraint("Vertical", 1))
sketch10.addConstraint(Sketcher.Constraint("Horizontal", 2))
sketch10.addConstraint(Sketcher.Constraint("Vertical", 3))
sketch10.addConstraint(Sketcher.Constraint("Vertical", 4))
sketch10.addConstraint(Sketcher.Constraint("Coincident", 4, 1, 1, 2))
sketch10.addConstraint(Sketcher.Constraint("Horizontal", 3, 2, 4, 2))
sketch10.addConstraint(Sketcher.Constraint("DistanceX", 0, 2, 0, 1, 24.0))
sketch10.addConstraint(Sketcher.Constraint("DistanceY", 1, 2, 1, 1, 4.0))
sketch10.addConstraint(Sketcher.Constraint("DistanceY", -1, 1, 0, 2, 20.0))
sketch10.addConstraint(Sketcher.Constraint("DistanceX", 0, 2, -1, 1, 42.5))
groove7 = doc.addObject("PartDesign::Groove", "Groove006")
body.addObject(groove7)
groove7.Profile = sketch10
groove7.ReferenceAxis = (sketch10, ["Axis0"])
groove7.Angle = 360

sketch11 = doc.addObject("Sketcher::SketchObject", "Sketch010")
body.addObject(sketch11)
sketch11.AttachmentSupport = (doc.YZ_Plane, [""])
sketch11.MapMode = "FlatFace"
sketch11.addGeometry(Part.LineSegment(V(-18.5, 14, 0), V(-42.5, 14, 0)), False)
sketch11.addGeometry(Part.LineSegment(V(-42.5, 14, 0), V(-42.5, 10, 0)), False)
sketch11.addGeometry(Part.LineSegment(V(-42.5, 10, 0), V(-18.5, 10, 0)), False)
sketch11.addGeometry(Part.LineSegment(V(-18.5, 10, 0), V(-18.5, 14, 0)), False)
sketch11.addGeometry(Part.LineSegment(V(-42.5, 10, 0), V(-42.5, 14, 0)), True)
sketch11.addConstraint(Sketcher.Constraint("Coincident", 0, 2, 1, 1))
sketch11.addConstraint(Sketcher.Constraint("Coincident", 1, 2, 2, 1))
sketch11.addConstraint(Sketcher.Constraint("Coincident", 2, 2, 3, 1))
sketch11.addConstraint(Sketcher.Constraint("Coincident", 3, 2, 0, 1))
sketch11.addConstraint(Sketcher.Constraint("Horizontal", 0))
sketch11.addConstraint(Sketcher.Constraint("Vertical", 1))
sketch11.addConstraint(Sketcher.Constraint("Horizontal", 2))
sketch11.addConstraint(Sketcher.Constraint("Vertical", 3))
sketch11.addConstraint(Sketcher.Constraint("Vertical", 4))
sketch11.addConstraint(Sketcher.Constraint("Coincident", 4, 1, 1, 2))
sketch11.addConstraint(Sketcher.Constraint("Horizontal", 3, 2, 4, 2))
sketch11.addConstraint(Sketcher.Constraint("DistanceX", 0, 2, 0, 1, 24.0))
sketch11.addConstraint(Sketcher.Constraint("DistanceY", 1, 2, 1, 1, 4.0))
sketch11.addConstraint(Sketcher.Constraint("DistanceY", -1, 1, 0, 2, 14.0))
sketch11.addConstraint(Sketcher.Constraint("DistanceX", 0, 2, -1, 1, 42.5))
groove8 = doc.addObject("PartDesign::Groove", "Groove007")
body.addObject(groove8)
groove8.Profile = sketch11
groove8.ReferenceAxis = (sketch11, ["Axis0"])
groove8.Angle = 360

sketch12 = doc.addObject("Sketcher::SketchObject", "Sketch011")
body.addObject(sketch12)
sketch12.AttachmentSupport = (doc.YZ_Plane, [""])
sketch12.MapMode = "FlatFace"
sketch12.addGeometry(Part.LineSegment(V(-18.5, 8, 0), V(-42.5, 8, 0)), False)
sketch12.addGeometry(Part.LineSegment(V(-42.5, 8, 0), V(-42.5, 4, 0)), False)
sketch12.addGeometry(Part.LineSegment(V(-42.5, 4, 0), V(-18.5, 4, 0)), False)
sketch12.addGeometry(Part.LineSegment(V(-18.5, 4, 0), V(-18.5, 8, 0)), False)
sketch12.addGeometry(Part.LineSegment(V(-42.5, 4, 0), V(-42.5, 8, 0)), True)
sketch12.addConstraint(Sketcher.Constraint("Coincident", 0, 2, 1, 1))
sketch12.addConstraint(Sketcher.Constraint("Coincident", 1, 2, 2, 1))
sketch12.addConstraint(Sketcher.Constraint("Coincident", 2, 2, 3, 1))
sketch12.addConstraint(Sketcher.Constraint("Coincident", 3, 2, 0, 1))
sketch12.addConstraint(Sketcher.Constraint("Horizontal", 0))
sketch12.addConstraint(Sketcher.Constraint("Vertical", 1))
sketch12.addConstraint(Sketcher.Constraint("Horizontal", 2))
sketch12.addConstraint(Sketcher.Constraint("Vertical", 3))
sketch12.addConstraint(Sketcher.Constraint("Vertical", 4))
sketch12.addConstraint(Sketcher.Constraint("Coincident", 4, 1, 1, 2))
sketch12.addConstraint(Sketcher.Constraint("Horizontal", 3, 2, 4, 2))
sketch12.addConstraint(Sketcher.Constraint("DistanceX", 0, 2, 0, 1, 24.0))
sketch12.addConstraint(Sketcher.Constraint("DistanceY", 1, 2, 1, 1, 4.0))
sketch12.addConstraint(Sketcher.Constraint("DistanceY", -1, 1, 0, 2, 8.0))
sketch12.addConstraint(Sketcher.Constraint("DistanceX", 0, 2, -1, 1, 42.5))
groove9 = doc.addObject("PartDesign::Groove", "Groove008")
body.addObject(groove9)
groove9.Profile = sketch12
groove9.ReferenceAxis = (sketch12, ["Axis0"])
groove9.Angle = 360

doc.recompute()
